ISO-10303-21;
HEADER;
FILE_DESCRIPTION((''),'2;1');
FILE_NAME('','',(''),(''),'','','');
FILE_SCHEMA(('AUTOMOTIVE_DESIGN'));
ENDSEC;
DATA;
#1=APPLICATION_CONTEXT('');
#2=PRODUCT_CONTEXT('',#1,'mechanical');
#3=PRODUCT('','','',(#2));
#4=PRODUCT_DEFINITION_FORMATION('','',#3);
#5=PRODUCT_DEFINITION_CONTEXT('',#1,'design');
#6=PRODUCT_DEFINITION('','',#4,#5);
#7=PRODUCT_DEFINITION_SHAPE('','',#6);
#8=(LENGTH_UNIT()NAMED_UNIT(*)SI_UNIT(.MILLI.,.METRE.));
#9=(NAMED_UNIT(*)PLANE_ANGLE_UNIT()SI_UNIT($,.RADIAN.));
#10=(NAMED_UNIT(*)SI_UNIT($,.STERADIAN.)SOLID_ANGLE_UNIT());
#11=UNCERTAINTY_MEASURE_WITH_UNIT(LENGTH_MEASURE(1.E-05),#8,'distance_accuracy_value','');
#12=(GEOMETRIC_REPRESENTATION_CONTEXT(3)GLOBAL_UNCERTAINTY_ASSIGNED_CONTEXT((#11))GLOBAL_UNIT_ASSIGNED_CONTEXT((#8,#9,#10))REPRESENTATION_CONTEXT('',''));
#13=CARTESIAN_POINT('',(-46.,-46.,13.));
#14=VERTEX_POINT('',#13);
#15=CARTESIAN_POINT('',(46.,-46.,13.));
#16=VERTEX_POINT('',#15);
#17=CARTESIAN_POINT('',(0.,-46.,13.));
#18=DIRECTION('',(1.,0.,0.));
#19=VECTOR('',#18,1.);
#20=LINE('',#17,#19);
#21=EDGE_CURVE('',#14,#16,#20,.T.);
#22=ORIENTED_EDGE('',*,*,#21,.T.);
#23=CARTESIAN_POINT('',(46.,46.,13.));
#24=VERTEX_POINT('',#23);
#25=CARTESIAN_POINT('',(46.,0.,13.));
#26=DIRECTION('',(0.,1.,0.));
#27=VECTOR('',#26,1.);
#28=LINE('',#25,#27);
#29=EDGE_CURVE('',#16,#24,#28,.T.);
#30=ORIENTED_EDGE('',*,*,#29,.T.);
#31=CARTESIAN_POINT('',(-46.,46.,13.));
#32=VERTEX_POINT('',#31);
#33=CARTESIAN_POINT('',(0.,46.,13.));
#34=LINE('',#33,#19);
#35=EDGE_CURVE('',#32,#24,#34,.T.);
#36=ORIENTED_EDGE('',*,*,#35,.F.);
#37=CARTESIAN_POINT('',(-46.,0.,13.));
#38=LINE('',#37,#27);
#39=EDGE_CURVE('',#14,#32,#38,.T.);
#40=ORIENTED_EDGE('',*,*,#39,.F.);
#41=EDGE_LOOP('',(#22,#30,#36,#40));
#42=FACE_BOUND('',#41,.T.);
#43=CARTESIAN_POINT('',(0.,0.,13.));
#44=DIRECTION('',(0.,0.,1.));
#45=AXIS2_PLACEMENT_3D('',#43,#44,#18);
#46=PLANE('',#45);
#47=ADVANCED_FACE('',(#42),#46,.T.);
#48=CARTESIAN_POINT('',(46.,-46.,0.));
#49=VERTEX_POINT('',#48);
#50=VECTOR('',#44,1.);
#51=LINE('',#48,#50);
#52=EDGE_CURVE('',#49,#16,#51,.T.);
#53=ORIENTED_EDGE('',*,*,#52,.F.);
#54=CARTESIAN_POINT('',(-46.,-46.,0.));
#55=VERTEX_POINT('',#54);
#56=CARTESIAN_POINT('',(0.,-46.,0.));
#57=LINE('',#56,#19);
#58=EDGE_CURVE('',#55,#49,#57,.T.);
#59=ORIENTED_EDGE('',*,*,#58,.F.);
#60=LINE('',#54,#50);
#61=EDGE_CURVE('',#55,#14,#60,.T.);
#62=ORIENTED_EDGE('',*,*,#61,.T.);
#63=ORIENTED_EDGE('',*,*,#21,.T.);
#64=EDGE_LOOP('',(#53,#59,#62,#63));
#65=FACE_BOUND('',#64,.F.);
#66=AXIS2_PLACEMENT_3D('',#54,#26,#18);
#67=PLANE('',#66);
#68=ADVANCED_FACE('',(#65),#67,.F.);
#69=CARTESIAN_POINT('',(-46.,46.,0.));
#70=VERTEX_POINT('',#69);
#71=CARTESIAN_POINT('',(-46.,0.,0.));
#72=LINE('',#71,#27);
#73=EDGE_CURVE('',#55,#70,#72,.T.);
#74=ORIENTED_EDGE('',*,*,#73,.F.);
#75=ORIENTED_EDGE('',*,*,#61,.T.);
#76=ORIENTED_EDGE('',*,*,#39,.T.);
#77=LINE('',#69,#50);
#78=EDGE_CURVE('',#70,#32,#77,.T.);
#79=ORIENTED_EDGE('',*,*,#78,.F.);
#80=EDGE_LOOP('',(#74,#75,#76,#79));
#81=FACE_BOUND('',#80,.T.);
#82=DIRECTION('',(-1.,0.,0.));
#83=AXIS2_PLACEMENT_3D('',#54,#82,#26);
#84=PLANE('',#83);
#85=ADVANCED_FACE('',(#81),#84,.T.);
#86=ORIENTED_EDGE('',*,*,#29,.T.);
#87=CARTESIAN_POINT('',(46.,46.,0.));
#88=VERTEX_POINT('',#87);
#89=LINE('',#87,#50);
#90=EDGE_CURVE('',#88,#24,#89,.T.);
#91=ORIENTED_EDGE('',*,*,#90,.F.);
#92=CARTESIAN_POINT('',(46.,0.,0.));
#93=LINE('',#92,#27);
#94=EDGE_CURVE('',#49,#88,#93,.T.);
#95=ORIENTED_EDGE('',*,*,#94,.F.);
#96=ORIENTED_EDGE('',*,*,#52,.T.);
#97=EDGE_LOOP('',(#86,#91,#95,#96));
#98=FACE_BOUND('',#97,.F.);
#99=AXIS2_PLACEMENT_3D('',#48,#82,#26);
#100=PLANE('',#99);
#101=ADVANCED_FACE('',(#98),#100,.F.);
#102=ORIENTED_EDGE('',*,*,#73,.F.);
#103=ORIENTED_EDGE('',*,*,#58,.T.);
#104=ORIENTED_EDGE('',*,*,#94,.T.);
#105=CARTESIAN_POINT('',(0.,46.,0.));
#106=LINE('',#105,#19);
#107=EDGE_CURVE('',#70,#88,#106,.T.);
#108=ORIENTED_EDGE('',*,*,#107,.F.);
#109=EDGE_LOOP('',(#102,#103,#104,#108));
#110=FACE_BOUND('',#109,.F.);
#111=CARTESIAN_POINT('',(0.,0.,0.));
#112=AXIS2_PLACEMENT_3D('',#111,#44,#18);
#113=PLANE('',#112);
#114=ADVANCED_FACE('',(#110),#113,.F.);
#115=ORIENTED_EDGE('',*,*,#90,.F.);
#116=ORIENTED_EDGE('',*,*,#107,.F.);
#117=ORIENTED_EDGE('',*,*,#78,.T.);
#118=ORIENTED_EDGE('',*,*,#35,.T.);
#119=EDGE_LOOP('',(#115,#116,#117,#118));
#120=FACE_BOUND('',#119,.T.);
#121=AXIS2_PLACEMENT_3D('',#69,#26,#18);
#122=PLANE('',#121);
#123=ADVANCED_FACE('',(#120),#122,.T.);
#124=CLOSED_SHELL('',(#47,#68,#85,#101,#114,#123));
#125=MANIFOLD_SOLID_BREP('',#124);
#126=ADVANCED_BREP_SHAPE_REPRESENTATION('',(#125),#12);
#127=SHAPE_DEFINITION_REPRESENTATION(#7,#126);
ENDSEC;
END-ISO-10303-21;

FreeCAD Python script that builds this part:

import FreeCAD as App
import Part
import Sketcher

V = App.Vector

doc = App.newDocument("Part")
body = doc.addObject("PartDesign::Body", "Body")

# Sketch on XY plane
sketch1 = body.newObject("Sketcher::SketchObject", "Sketch")
sketch1.AttachmentSupport = (doc.getObject("XY_Plane"), [""])
sketch1.MapMode = "FlatFace"
sketch1.addGeometry([
    Part.LineSegment(V(-46, 46, 0), V(-46, -46, 0)),
    Part.LineSegment(V(-46, -46, 0), V(46, -46, 0)),
    Part.LineSegment(V(46, -46, 0), V(46, 46, 0)),
    Part.LineSegment(V(46, 46, 0), V(-46, 46, 0)),
], False)
sketch1.addConstraint([
    Sketcher.Constraint("Coincident", 0, 2, 1, 1),
    Sketcher.Constraint("Coincident", 1, 2, 2, 1),
    Sketcher.Constraint("Coincident", 2, 2, 3, 1),
    Sketcher.Constraint("Coincident", 3, 2, 0, 1),
    Sketcher.Constraint("Vertical", 0),
    Sketcher.Constraint("Horizontal", 1),
    Sketcher.Constraint("Vertical", 2),
    Sketcher.Constraint("Horizontal", 3),
    Sketcher.Constraint("Symmetric", 0, 2, 2, 2, -1, 1),
    Sketcher.Constraint("Equal", 3, 0),
    Sketcher.Constraint("DistanceX", 1, 1, 1, 2, 92.0),
])
pad1 = body.newObject("PartDesign::Pad", "Pad")
pad1.Profile = sketch1
pad1.Length = 13

doc.recompute()
